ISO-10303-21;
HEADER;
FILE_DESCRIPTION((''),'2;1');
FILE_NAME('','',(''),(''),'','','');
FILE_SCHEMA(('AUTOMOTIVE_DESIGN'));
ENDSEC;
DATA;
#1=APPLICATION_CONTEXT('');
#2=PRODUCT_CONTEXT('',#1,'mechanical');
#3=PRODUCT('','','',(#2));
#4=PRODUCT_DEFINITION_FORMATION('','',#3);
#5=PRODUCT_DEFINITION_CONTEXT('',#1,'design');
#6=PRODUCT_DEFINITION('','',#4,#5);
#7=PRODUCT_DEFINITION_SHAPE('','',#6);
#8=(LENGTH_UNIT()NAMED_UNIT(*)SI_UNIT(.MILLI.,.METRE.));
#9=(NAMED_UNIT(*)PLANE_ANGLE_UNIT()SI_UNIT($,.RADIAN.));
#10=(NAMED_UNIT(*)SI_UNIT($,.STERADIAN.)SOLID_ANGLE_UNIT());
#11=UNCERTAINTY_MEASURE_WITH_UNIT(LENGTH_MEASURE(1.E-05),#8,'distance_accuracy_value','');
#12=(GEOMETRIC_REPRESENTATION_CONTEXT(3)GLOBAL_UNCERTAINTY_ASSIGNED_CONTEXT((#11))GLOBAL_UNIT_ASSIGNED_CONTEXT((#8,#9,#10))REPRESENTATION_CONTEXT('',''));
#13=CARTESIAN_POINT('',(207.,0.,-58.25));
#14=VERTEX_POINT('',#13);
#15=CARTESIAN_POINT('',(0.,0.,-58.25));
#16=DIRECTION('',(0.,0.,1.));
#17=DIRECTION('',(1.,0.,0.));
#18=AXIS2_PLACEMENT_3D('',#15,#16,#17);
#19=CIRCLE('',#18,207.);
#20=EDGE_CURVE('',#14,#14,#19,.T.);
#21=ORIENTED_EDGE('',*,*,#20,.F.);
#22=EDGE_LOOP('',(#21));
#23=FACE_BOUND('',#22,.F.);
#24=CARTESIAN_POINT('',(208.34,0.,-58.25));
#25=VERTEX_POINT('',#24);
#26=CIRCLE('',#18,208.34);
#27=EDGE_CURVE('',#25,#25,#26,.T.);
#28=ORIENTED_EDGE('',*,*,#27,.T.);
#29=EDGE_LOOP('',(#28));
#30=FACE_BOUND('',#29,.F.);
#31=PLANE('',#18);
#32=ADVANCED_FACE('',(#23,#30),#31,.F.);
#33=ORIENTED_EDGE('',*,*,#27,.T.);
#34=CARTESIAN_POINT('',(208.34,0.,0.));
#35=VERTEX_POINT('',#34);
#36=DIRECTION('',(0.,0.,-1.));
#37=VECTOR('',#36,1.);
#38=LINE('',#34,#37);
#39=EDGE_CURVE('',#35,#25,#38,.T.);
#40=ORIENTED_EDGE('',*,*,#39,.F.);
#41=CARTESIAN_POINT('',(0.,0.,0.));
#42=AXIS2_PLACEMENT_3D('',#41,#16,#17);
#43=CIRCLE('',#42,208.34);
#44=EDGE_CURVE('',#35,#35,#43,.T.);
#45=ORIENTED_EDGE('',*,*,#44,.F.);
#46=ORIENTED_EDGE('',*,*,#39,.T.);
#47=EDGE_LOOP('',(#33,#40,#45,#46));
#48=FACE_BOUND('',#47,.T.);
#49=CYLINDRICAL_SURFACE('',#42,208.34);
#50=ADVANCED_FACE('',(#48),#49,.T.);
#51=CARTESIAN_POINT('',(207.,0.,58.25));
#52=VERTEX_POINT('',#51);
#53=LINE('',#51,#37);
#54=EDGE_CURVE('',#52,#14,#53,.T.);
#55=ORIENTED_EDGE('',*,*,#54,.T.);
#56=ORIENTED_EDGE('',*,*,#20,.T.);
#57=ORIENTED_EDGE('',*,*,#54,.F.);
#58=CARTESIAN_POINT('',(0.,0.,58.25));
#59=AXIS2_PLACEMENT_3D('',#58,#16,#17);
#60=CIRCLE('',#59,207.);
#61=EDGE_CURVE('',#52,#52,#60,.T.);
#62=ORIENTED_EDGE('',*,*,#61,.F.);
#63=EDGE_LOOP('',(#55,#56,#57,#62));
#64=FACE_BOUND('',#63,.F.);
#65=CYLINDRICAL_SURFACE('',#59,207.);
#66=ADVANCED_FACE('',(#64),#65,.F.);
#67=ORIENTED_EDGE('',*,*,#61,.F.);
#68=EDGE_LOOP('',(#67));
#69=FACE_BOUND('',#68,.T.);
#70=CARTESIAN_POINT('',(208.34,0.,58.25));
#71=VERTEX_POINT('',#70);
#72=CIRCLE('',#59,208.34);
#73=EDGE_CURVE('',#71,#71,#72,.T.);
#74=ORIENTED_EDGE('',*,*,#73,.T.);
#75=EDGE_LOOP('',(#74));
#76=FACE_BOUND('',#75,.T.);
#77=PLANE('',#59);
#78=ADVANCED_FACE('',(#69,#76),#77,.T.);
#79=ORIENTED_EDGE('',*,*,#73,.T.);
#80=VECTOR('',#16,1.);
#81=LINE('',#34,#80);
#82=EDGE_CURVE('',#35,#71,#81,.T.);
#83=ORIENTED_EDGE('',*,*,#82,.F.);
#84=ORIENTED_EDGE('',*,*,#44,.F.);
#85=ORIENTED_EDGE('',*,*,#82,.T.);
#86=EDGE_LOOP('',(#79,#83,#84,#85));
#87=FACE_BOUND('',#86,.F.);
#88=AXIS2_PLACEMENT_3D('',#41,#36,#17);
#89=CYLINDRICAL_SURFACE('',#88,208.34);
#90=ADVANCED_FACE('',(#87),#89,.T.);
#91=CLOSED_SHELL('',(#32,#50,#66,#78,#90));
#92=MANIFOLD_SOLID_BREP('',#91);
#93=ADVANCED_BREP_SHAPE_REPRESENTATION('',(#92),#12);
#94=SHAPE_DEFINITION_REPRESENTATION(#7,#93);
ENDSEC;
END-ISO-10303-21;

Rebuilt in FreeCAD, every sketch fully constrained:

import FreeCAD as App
import Part
import Sketcher
from FreeCAD import Vector

doc = App.newDocument("Part")
body = doc.addObject("PartDesign::Body", "Body")

# Sketch on XY plane
sketch1 = body.newObject("Sketcher::SketchObject", "Sketch")
sketch1.AttachmentSupport = (doc.getObject("XY_Plane"), [""])
sketch1.MapMode = "FlatFace"
sketch1.addGeometry(Part.Circle(Vector(0, 0, 0), Vector(0, 0, 1), 208.34), False)
sketch1.addConstraint([
    Sketcher.Constraint("Coincident", 0, 3, -1, 1),
    Sketcher.Constraint("Diameter", 0, 416.68),
])
pad1 = body.newObject("PartDesign::Pad", "Pad")
pad1.Profile = sketch1
pad1.Length = 116.5
pad1.Midplane = True

# Sketch on XY plane
sketch2 = body.newObject("Sketcher::SketchObject", "Sketch001")
sketch2.AttachmentSupport = (doc.getObject("XY_Plane"), [""])
sketch2.MapMode = "FlatFace"
sketch2.AttachmentOffset = App.Placement(Vector(0, 0, 58.25), App.Rotation())
sketch2.addGeometry(Part.Circle(Vector(0, 0, 0), Vector(0, 0, 1), 207), False)
sketch2.addConstraint([
    Sketcher.Constraint("Coincident", 0, 3, -1, 1),
    Sketcher.Constraint("Diameter", 0, 414.0),
])
pocket1 = body.newObject("PartDesign::Pocket", "Pocket")
pocket1.Profile = sketch2
pocket1.Type = "ThroughAll"

doc.recompute()
